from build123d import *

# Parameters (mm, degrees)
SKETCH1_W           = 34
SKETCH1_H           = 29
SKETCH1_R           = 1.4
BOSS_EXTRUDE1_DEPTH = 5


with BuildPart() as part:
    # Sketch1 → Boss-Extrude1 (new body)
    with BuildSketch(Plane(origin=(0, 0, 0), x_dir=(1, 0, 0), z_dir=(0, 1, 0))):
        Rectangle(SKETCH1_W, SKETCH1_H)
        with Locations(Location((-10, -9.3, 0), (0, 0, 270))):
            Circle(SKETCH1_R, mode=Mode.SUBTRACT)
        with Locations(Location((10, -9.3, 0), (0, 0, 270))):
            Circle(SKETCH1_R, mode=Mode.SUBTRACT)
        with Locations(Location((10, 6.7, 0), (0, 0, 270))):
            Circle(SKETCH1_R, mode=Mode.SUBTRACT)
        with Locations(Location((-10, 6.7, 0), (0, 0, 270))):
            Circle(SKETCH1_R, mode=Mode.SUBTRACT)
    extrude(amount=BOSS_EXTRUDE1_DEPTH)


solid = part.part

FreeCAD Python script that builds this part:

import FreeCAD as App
import Part
import Sketcher
from FreeCAD import Vector

doc = App.newDocument("Part")
body = doc.addObject("PartDesign::Body", "Body")

sketch1 = doc.addObject("Sketcher::SketchObject", "Sketch")
body.addObject(sketch1)
sketch1.AttachmentSupport = (doc.XZ_Plane, [""])
sketch1.MapMode = "FlatFace"
sketch1.addGeometry([
    Part.LineSegment(Vector(-17, -14.5, 0), Vector(-17, 14.5, 0)),
    Part.LineSegment(Vector(-17, 14.5, 0), Vector(17, 14.5, 0)),
    Part.LineSegment(Vector(17, 14.5, 0), Vector(17, -14.5, 0)),
    Part.LineSegment(Vector(17, -14.5, 0), Vector(-17, -14.5, 0)),
    Part.Circle(Vector(-10, 9.3, 0), Vector(0, 0, 1), 1.4),
    Part.Circle(Vector(10, 9.3, 0), Vector(0, 0, 1), 1.4),
    Part.Circle(Vector(-10, -6.7, 0), Vector(0, 0, 1), 1.4),
    Part.Circle(Vector(10, -6.7, 0), Vector(0, 0, 1), 1.4),
], False)
sketch1.addConstraint([
    Sketcher.Constraint("Coincident", 0, 2, 1, 1),
    Sketcher.Constraint("Coincident", 1, 2, 2, 1),
    Sketcher.Constraint("Coincident", 2, 2, 3, 1),
    Sketcher.Constraint("Coincident", 3, 2, 0, 1),
    Sketcher.Constraint("Vertical", 0),
    Sketcher.Constraint("Horizontal", 1),
    Sketcher.Constraint("Vertical", 2),
    Sketcher.Constraint("Horizontal", 3),
    Sketcher.Constraint("Equal", 4, 5),
    Sketcher.Constraint("Equal", 5, 6),
    Sketcher.Constraint("Equal", 6, 7),
    Sketcher.Constraint("Symmetric", 0, 2, 2, 2, -1, 1),
    Sketcher.Constraint("Symmetric", 4, 3, 5, 3, -2),
    Sketcher.Constraint("Symmetric", 6, 3, 7, 3, -2),
    Sketcher.Constraint("Vertical", 4, 3, 6, 3),
    Sketcher.Constraint("Diameter", 4, 2.8),
    Sketcher.Constraint("DistanceX", 1, 1, 1, 2, 34.0),
    Sketcher.Constraint("DistanceY", 0, 1, 0, 2, 29.0),
    Sketcher.Constraint("DistanceX", 4, 3, -1, 1, 10.0),
    Sketcher.Constraint("DistanceY", 6, 3, 4, 3, 16.0),
    Sketcher.Constraint("DistanceY", -1, 1, 4, 3, 9.3),
])
pad1 = doc.addObject("PartDesign::Pad", "Pad")
body.addObject(pad1)
pad1.Profile = sketch1
pad1.Length = 5
pad1.Reversed = True

doc.recompute()
